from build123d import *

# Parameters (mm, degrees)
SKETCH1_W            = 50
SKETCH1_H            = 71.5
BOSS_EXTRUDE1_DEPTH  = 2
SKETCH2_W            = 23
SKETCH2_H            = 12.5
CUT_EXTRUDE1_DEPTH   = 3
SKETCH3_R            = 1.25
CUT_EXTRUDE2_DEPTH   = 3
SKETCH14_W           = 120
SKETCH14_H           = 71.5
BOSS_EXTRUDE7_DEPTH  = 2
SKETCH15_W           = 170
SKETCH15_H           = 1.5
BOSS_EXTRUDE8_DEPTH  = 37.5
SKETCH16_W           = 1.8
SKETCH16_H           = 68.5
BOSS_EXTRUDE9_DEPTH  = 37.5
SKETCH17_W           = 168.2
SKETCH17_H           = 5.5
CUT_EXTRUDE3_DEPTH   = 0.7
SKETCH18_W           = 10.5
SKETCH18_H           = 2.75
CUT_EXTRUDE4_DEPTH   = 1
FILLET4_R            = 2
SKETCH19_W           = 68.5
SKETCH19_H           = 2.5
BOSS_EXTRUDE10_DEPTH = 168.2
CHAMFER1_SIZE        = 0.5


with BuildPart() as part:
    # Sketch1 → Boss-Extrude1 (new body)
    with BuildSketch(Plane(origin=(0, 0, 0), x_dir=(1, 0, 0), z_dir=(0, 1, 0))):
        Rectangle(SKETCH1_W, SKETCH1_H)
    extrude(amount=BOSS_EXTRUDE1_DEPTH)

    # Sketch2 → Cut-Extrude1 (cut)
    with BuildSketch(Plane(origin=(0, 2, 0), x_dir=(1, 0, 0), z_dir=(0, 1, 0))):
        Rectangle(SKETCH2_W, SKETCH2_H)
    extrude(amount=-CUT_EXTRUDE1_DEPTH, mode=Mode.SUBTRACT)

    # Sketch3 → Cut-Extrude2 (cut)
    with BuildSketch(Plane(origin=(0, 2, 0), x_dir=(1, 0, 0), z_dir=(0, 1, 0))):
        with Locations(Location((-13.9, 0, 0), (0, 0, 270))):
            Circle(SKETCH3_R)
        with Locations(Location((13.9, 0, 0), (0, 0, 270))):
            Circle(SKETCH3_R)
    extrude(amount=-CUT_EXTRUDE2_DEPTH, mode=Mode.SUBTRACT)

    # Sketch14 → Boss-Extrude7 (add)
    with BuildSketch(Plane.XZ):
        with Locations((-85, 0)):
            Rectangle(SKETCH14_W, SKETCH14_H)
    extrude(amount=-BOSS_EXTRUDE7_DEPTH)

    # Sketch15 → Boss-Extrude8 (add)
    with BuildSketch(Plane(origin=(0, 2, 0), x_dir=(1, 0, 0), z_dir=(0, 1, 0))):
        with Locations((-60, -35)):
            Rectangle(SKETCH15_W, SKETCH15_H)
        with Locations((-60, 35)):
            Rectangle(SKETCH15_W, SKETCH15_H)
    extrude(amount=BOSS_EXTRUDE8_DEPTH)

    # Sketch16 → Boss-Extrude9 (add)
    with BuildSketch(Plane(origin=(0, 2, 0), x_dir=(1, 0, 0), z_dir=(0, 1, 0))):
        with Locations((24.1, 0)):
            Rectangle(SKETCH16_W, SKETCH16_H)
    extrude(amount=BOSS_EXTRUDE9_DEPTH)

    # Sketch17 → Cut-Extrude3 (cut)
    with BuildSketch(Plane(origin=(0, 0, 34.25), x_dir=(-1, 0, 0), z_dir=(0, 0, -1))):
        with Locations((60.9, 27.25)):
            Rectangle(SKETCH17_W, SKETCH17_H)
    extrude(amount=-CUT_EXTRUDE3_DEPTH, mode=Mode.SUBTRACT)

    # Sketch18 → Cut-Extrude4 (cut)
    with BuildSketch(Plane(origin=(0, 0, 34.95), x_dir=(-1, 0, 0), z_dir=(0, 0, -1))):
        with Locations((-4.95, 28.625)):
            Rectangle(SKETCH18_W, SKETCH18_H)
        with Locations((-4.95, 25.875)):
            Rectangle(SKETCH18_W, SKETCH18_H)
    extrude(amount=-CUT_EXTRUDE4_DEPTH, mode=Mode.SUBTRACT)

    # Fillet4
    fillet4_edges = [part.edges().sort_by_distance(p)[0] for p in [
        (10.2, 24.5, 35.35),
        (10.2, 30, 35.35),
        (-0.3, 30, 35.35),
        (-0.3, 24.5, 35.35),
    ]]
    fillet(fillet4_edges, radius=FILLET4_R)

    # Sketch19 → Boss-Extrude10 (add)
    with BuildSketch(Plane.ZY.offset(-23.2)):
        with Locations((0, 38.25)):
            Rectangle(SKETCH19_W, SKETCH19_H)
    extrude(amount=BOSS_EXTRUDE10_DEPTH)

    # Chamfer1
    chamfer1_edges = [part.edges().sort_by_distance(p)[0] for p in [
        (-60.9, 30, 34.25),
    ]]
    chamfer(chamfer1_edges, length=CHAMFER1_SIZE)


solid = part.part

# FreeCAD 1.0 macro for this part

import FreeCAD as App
import Part
import Sketcher
from FreeCAD import Vector


def edges_at(feature, points):
    """Names of the edges that pass closest to the given points."""
    edges = feature.Shape.Edges
    near = lambda p: min(range(len(edges)), key=lambda i: edges[i].distToShape(Part.Vertex(*p))[0])
    return sorted({f"Edge{near(p) + 1}" for p in points})

doc = App.newDocument("Part")
params = doc.addObject("Spreadsheet::Sheet", "Params")
for row, (alias, value) in enumerate([
    ("sketch1_width", "50 mm"),
    ("sketch1_height", "71.5 mm"),
    ("pad1_length", "2 mm"),
    ("sketch2_width", "23 mm"),
    ("sketch2_height", "12.5 mm"),
    ("pocket1_length", "3 mm"),
    ("sketch3_diameter", "2.5 mm"),
    ("pocket2_length", "3 mm"),
    ("sketch4_width", "120 mm"),
    ("sketch4_height", "71.5 mm"),
    ("pad2_length", "2 mm"),
    ("sketch5_width", "170 mm"),
    ("sketch5_height", "1.5 mm"),
    ("pad3_length", "37.5 mm"),
    ("sketch6_width", "1.8 mm"),
    ("sketch6_height", "68.5 mm"),
    ("pad4_length", "37.5 mm"),
    ("sketch7_width", "168.2 mm"),
    ("sketch7_height", "5.5 mm"),
    ("pocket3_length", "0.7 mm"),
    ("sketch8_width", "10.5 mm"),
    ("sketch8_height", "5.5 mm"),
    ("pocket4_length", "1 mm"),
    ("fillet_radius", "2 mm"),
    ("sketch9_width", "2.5 mm"),
    ("sketch9_height", "68.5 mm"),
    ("pad5_length", "168.2 mm"),
    ("chamfer_size", "0.5 mm"),
], start=1):
    params.set(f"A{row}", alias)
    params.set(f"B{row}", "=" + value)
    params.setAlias(f"B{row}", alias)

body = doc.addObject("PartDesign::Body", "Body")

# Sketch on XZ plane
sketch1 = body.newObject("Sketcher::SketchObject", "Sketch")
sketch1.AttachmentSupport = (doc.getObject("XZ_Plane"), [""])
sketch1.MapMode = "FlatFace"
sketch1.addGeometry(Part.LineSegment(Vector(-25, -36, 0), Vector(-25, 36, 0)), False)
sketch1.addGeometry(Part.LineSegment(Vector(-25, 36, 0), Vector(25, 36, 0)), False)
sketch1.addGeometry(Part.LineSegment(Vector(25, 36, 0), Vector(25, -36, 0)), False)
sketch1.addGeometry(Part.LineSegment(Vector(25, -36, 0), Vector(-25, -36, 0)), False)
sketch1.addConstraint(Sketcher.Constraint("Coincident", 0, 2, 1, 1))
sketch1.addConstraint(Sketcher.Constraint("Coincident", 1, 2, 2, 1))
sketch1.addConstraint(Sketcher.Constraint("Coincident", 2, 2, 3, 1))
sketch1.addConstraint(Sketcher.Constraint("Coincident", 3, 2, 0, 1))
sketch1.addConstraint(Sketcher.Constraint("Vertical", 0))
sketch1.addConstraint(Sketcher.Constraint("Horizontal", 1))
sketch1.addConstraint(Sketcher.Constraint("Vertical", 2))
sketch1.addConstraint(Sketcher.Constraint("Horizontal", 3))
sketch1.addConstraint(Sketcher.Constraint("Symmetric", 0, 2, 2, 2, -1, 1))
sketch1.addConstraint(Sketcher.Constraint("DistanceX", 1, 1, 1, 2, 50.0))
sketch1.addConstraint(Sketcher.Constraint("DistanceY", 0, 1, 0, 2, 71.5))
sketch1.setExpression("Constraints[9]", "Params.sketch1_width")
sketch1.setExpression("Constraints[10]", "Params.sketch1_height")
pad1 = body.newObject("PartDesign::Pad", "Pad")
pad1.Profile = sketch1
pad1.setExpression("Length", "Params.pad1_length")
pad1.Reversed = True

# Sketch on XZ plane
sketch2 = body.newObject("Sketcher::SketchObject", "Sketch001")
sketch2.AttachmentSupport = (doc.getObject("XZ_Plane"), [""])
sketch2.MapMode = "FlatFace"
sketch2.AttachmentOffset = App.Placement(Vector(0, 0, -2), App.Rotation())
sketch2.addGeometry(Part.LineSegment(Vector(-12, -6, 0), Vector(-12, 6, 0)), False)
sketch2.addGeometry(Part.LineSegment(Vector(-12, 6, 0), Vector(12, 6, 0)), False)
sketch2.addGeometry(Part.LineSegment(Vector(12, 6, 0), Vector(12, -6, 0)), False)
sketch2.addGeometry(Part.LineSegment(Vector(12, -6, 0), Vector(-12, -6, 0)), False)
sketch2.addConstraint(Sketcher.Constraint("Coincident", 0, 2, 1, 1))
sketch2.addConstraint(Sketcher.Constraint("Coincident", 1, 2, 2, 1))
sketch2.addConstraint(Sketcher.Constraint("Coincident", 2, 2, 3, 1))
sketch2.addConstraint(Sketcher.Constraint("Coincident", 3, 2, 0, 1))
sketch2.addConstraint(Sketcher.Constraint("Vertical", 0))
sketch2.addConstraint(Sketcher.Constraint("Horizontal", 1))
sketch2.addConstraint(Sketcher.Constraint("Vertical", 2))
sketch2.addConstraint(Sketcher.Constraint("Horizontal", 3))
sketch2.addConstraint(Sketcher.Constraint("Symmetric", 0, 2, 2, 2, -1, 1))
sketch2.addConstraint(Sketcher.Constraint("DistanceX", 1, 1, 1, 2, 23.0))
sketch2.addConstraint(Sketcher.Constraint("DistanceY", 0, 1, 0, 2, 12.5))
sketch2.setExpression("Constraints[9]", "Params.sketch2_width")
sketch2.setExpression("Constraints[10]", "Params.sketch2_height")
pocket1 = body.newObject("PartDesign::Pocket", "Pocket")
pocket1.Profile = sketch2
pocket1.setExpression("Length", "Params.pocket1_length")
pocket1.Reversed = True

# Sketch on XZ plane
sketch3 = body.newObject("Sketcher::SketchObject", "Sketch002")
sketch3.AttachmentSupport = (doc.getObject("XZ_Plane"), [""])
sketch3.MapMode = "FlatFace"
sketch3.AttachmentOffset = App.Placement(Vector(0, 0, -2), App.Rotation())
sketch3.addGeometry(Part.Circle(Vector(-13.9, 0, 0), Vector(0, 0, 1), 1.2), False)
sketch3.addGeometry(Part.Circle(Vector(13.9, 0, 0), Vector(0, 0, 1), 1.2), False)
sketch3.addConstraint(Sketcher.Constraint("Equal", 0, 1))
sketch3.addConstraint(Sketcher.Constraint("Symmetric", 0, 3, 1, 3, -1, 1))
sketch3.addConstraint(Sketcher.Constraint("PointOnObject", 0, 3, -1))
sketch3.addConstraint(Sketcher.Constraint("Diameter", 0, 2.5))
sketch3.addConstraint(Sketcher.Constraint("DistanceX", 0, 3, -1, 1, 13.9))
sketch3.setExpression("Constraints[3]", "Params.sketch3_diameter")
pocket2 = body.newObject("PartDesign::Pocket", "Pocket001")
pocket2.Profile = sketch3
pocket2.setExpression("Length", "Params.pocket2_length")
pocket2.Reversed = True

# Sketch on XZ plane
sketch4 = body.newObject("Sketcher::SketchObject", "Sketch003")
sketch4.AttachmentSupport = (doc.getObject("XZ_Plane"), [""])
sketch4.MapMode = "FlatFace"
sketch4.addGeometry(Part.LineSegment(Vector(-145, 36, 0), Vector(-145, -36, 0)), False)
sketch4.addGeometry(Part.LineSegment(Vector(-145, -36, 0), Vector(-25, -36, 0)), False)
sketch4.addGeometry(Part.LineSegment(Vector(-25, -36, 0), Vector(-25, 36, 0)), False)
sketch4.addGeometry(Part.LineSegment(Vector(-25, 36, 0), Vector(-145, 36, 0)), False)
sketch4.addConstraint(Sketcher.Constraint("Coincident", 0, 2, 1, 1))
sketch4.addConstraint(Sketcher.Constraint("Coincident", 1, 2, 2, 1))
sketch4.addConstraint(Sketcher.Constraint("Coincident", 2, 2, 3, 1))
sketch4.addConstraint(Sketcher.Constraint("Coincident", 3, 2, 0, 1))
sketch4.addConstraint(Sketcher.Constraint("Vertical", 0))
sketch4.addConstraint(Sketcher.Constraint("Horizontal", 1))
sketch4.addConstraint(Sketcher.Constraint("Vertical", 2))
sketch4.addConstraint(Sketcher.Constraint("Horizontal", 3))
sketch4.addConstraint(Sketcher.Constraint("DistanceX", 1, 1, 1, 2, 120.0))
sketch4.addConstraint(Sketcher.Constraint("DistanceY", 0, 2, 0, 1, 71.5))
sketch4.addConstraint(Sketcher.Constraint("DistanceX", 0, 2, -1, 1, 145.0))
sketch4.addConstraint(Sketcher.Constraint("DistanceY", 0, 2, -1, 1, 35.75))
sketch4.setExpression("Constraints[8]", "Params.sketch4_width")
sketch4.setExpression("Constraints[9]", "Params.sketch4_height")
pad2 = body.newObject("PartDesign::Pad", "Pad001")
pad2.Profile = sketch4
pad2.setExpression("Length", "Params.pad2_length")
pad2.Reversed = True

# Sketch on XZ plane
sketch5 = body.newObject("Sketcher::SketchObject", "Sketch004")
sketch5.AttachmentSupport = (doc.getObject("XZ_Plane"), [""])
sketch5.MapMode = "FlatFace"
sketch5.AttachmentOffset = App.Placement(Vector(0, 0, -2), App.Rotation())
sketch5.addGeometry(Part.LineSegment(Vector(-145, 34.2, 0), Vector(-145, 35.8, 0)), False)
sketch5.addGeometry(Part.LineSegment(Vector(-145, 35.8, 0), Vector(25, 35.8, 0)), False)
sketch5.addGeometry(Part.LineSegment(Vector(25, 35.8, 0), Vector(25, 34.2, 0)), False)
sketch5.addGeometry(Part.LineSegment(Vector(25, 34.2, 0), Vector(-145, 34.2, 0)), False)
sketch5.addGeometry(Part.LineSegment(Vector(-145, -35.8, 0), Vector(-145, -34.2, 0)), False)
sketch5.addGeometry(Part.LineSegment(Vector(-145, -34.2, 0), Vector(25, -34.2, 0)), False)
sketch5.addGeometry(Part.LineSegment(Vector(25, -34.2, 0), Vector(25, -35.8, 0)), False)
sketch5.addGeometry(Part.LineSegment(Vector(25, -35.8, 0), Vector(-145, -35.8, 0)), False)
sketch5.addConstraint(Sketcher.Constraint("Coincident", 0, 2, 1, 1))
sketch5.addConstraint(Sketcher.Constraint("Coincident", 1, 2, 2, 1))
sketch5.addConstraint(Sketcher.Constraint("Coincident", 2, 2, 3, 1))
sketch5.addConstraint(Sketcher.Constraint("Coincident", 3, 2, 0, 1))
sketch5.addConstraint(Sketcher.Constraint("Coincident", 4, 2, 5, 1))
sketch5.addConstraint(Sketcher.Constraint("Coincident", 5, 2, 6, 1))
sketch5.addConstraint(Sketcher.Constraint("Coincident", 6, 2, 7, 1))
sketch5.addConstraint(Sketcher.Constraint("Coincident", 7, 2, 4, 1))
sketch5.addConstraint(Sketcher.Constraint("Vertical", 0))
sketch5.addConstraint(Sketcher.Constraint("Horizontal", 1))
sketch5.addConstraint(Sketcher.Constraint("Vertical", 2))
sketch5.addConstraint(Sketcher.Constraint("Horizontal", 3))
sketch5.addConstraint(Sketcher.Constraint("Vertical", 4))
sketch5.addConstraint(Sketcher.Constraint("Horizontal", 5))
sketch5.addConstraint(Sketcher.Constraint("Vertical", 6))
sketch5.addConstraint(Sketcher.Constraint("Horizontal", 7))
sketch5.addConstraint(Sketcher.Constraint("Symmetric", 3, 2, 4, 2, -1))
sketch5.addConstraint(Sketcher.Constraint("Symmetric", 1, 2, 6, 2, -1))
sketch5.addConstraint(Sketcher.Constraint("DistanceX", 1, 1, 1, 2, 170.0))
sketch5.addConstraint(Sketcher.Constraint("DistanceY", 0, 1, 0, 2, 1.5))
sketch5.addConstraint(Sketcher.Constraint("DistanceX", 0, 2, -1, 1, 145.0))
sketch5.addConstraint(Sketcher.Constraint("DistanceY", 4, 2, 0, 2, 70.0))
sketch5.setExpression("Constraints[18]", "Params.sketch5_width")
sketch5.setExpression("Constraints[19]", "Params.sketch5_height")
pad3 = body.newObject("PartDesign::Pad", "Pad002")
pad3.Profile = sketch5
pad3.setExpression("Length", "Params.pad3_length")
pad3.Reversed = True

# Sketch on XZ plane
sketch6 = body.newObject("Sketcher::SketchObject", "Sketch005")
sketch6.AttachmentSupport = (doc.getObject("XZ_Plane"), [""])
sketch6.MapMode = "FlatFace"
sketch6.AttachmentOffset = App.Placement(Vector(0, 0, -2), App.Rotation())
sketch6.addGeometry(Part.LineSegment(Vector(23.2, -34.2, 0), Vector(23.2, 34.2, 0)), False)
sketch6.addGeometry(Part.LineSegment(Vector(23.2, 34.2, 0), Vector(25, 34.2, 0)), False)
sketch6.addGeometry(Part.LineSegment(Vector(25, 34.2, 0), Vector(25, -34.2, 0)), False)
sketch6.addGeometry(Part.LineSegment(Vector(25, -34.2, 0), Vector(23.2, -34.2, 0)), False)
sketch6.addConstraint(Sketcher.Constraint("Coincident", 0, 2, 1, 1))
sketch6.addConstraint(Sketcher.Constraint("Coincident", 1, 2, 2, 1))
sketch6.addConstraint(Sketcher.Constraint("Coincident", 2, 2, 3, 1))
sketch6.addConstraint(Sketcher.Constraint("Coincident", 3, 2, 0, 1))
sketch6.addConstraint(Sketcher.Constraint("Vertical", 0))
sketch6.addConstraint(Sketcher.Constraint("Horizontal", 1))
sketch6.addConstraint(Sketcher.Constraint("Vertical", 2))
sketch6.addConstraint(Sketcher.Constraint("Horizontal", 3))
sketch6.addConstraint(Sketcher.Constraint("DistanceX", 1, 1, 1, 2, 1.8))
sketch6.addConstraint(Sketcher.Constraint("DistanceY", 0, 1, 0, 2, 68.5))
sketch6.addConstraint(Sketcher.Constraint("DistanceX", -1, 1, 1, 2, 25.0))
sketch6.addConstraint(Sketcher.Constraint("DistanceY", -1, 1, 0, 2, 34.25))
sketch6.setExpression("Constraints[8]", "Params.sketch6_width")
sketch6.setExpression("Constraints[9]", "Params.sketch6_height")
pad4 = body.newObject("PartDesign::Pad", "Pad003")
pad4.Profile = sketch6
pad4.setExpression("Length", "Params.pad4_length")
pad4.Reversed = True

# Sketch on XY plane
sketch7 = body.newObject("Sketcher::SketchObject", "Sketch006")
sketch7.AttachmentSupport = (doc.getObject("XY_Plane"), [""])
sketch7.MapMode = "FlatFace"
sketch7.AttachmentOffset = App.Placement(Vector(0, 0, 34.25), App.Rotation())
sketch7.addGeometry(Part.LineSegment(Vector(23, 30, 0), Vector(23, 24, 0)), False)
sketch7.addGeometry(Part.LineSegment(Vector(23, 24, 0), Vector(-145, 24, 0)), False)
sketch7.addGeometry(Part.LineSegment(Vector(-145, 24, 0), Vector(-145, 30, 0)), False)
sketch7.addGeometry(Part.LineSegment(Vector(-145, 30, 0), Vector(23, 30, 0)), False)
sketch7.addConstraint(Sketcher.Constraint("Coincident", 0, 2, 1, 1))
sketch7.addConstraint(Sketcher.Constraint("Coincident", 1, 2, 2, 1))
sketch7.addConstraint(Sketcher.Constraint("Coincident", 2, 2, 3, 1))
sketch7.addConstraint(Sketcher.Constraint("Coincident", 3, 2, 0, 1))
sketch7.addConstraint(Sketcher.Constraint("Vertical", 0))
sketch7.addConstraint(Sketcher.Constraint("Horizontal", 1))
sketch7.addConstraint(Sketcher.Constraint("Vertical", 2))
sketch7.addConstraint(Sketcher.Constraint("Horizontal", 3))
sketch7.addConstraint(Sketcher.Constraint("DistanceX", 1, 2, 1, 1, 168.2))
sketch7.addConstraint(Sketcher.Constraint("DistanceY", 0, 2, 0, 1, 5.5))
sketch7.addConstraint(Sketcher.Constraint("DistanceX", 1, 2, -1, 1, 145.0))
sketch7.addConstraint(Sketcher.Constraint("DistanceY", -1, 1, 2, 2, 30.0))
sketch7.setExpression("Constraints[8]", "Params.sketch7_width")
sketch7.setExpression("Constraints[9]", "Params.sketch7_height")
pocket3 = body.newObject("PartDesign::Pocket", "Pocket002")
pocket3.Profile = sketch7
pocket3.setExpression("Length", "Params.pocket3_length")
pocket3.Reversed = True

# Sketch on XY plane
sketch8 = body.newObject("Sketcher::SketchObject", "Sketch007")
sketch8.AttachmentSupport = (doc.getObject("XY_Plane"), [""])
sketch8.MapMode = "FlatFace"
sketch8.AttachmentOffset = App.Placement(Vector(0, 0, 34.95), App.Rotation())
sketch8.addGeometry(Part.LineSegment(Vector(10, 30, 0), Vector(10, 24, 0)), False)
sketch8.addGeometry(Part.LineSegment(Vector(10, 24, 0), Vector(0, 24, 0)), False)
sketch8.addGeometry(Part.LineSegment(Vector(0, 24, 0), Vector(0, 30, 0)), False)
sketch8.addGeometry(Part.LineSegment(Vector(0, 30, 0), Vector(10, 30, 0)), False)
sketch8.addConstraint(Sketcher.Constraint("Coincident", 0, 2, 1, 1))
sketch8.addConstraint(Sketcher.Constraint("Coincident", 1, 2, 2, 1))
sketch8.addConstraint(Sketcher.Constraint("Coincident", 2, 2, 3, 1))
sketch8.addConstraint(Sketcher.Constraint("Coincident", 3, 2, 0, 1))
sketch8.addConstraint(Sketcher.Constraint("Vertical", 0))
sketch8.addConstraint(Sketcher.Constraint("Horizontal", 1))
sketch8.addConstraint(Sketcher.Constraint("Vertical", 2))
sketch8.addConstraint(Sketcher.Constraint("Horizontal", 3))
sketch8.addConstraint(Sketcher.Constraint("DistanceX", 1, 2, 1, 1, 10.5))
sketch8.addConstraint(Sketcher.Constraint("DistanceY", 0, 2, 0, 1, 5.5))
sketch8.addConstraint(Sketcher.Constraint("DistanceY", -1, 1, 2, 2, 30.0))
sketch8.addConstraint(Sketcher.Constraint("DistanceX", -1, 1, 0, 2, 10.2))
sketch8.setExpression("Constraints[8]", "Params.sketch8_width")
sketch8.setExpression("Constraints[9]", "Params.sketch8_height")
pocket4 = body.newObject("PartDesign::Pocket", "Pocket003")
pocket4.Profile = sketch8
pocket4.setExpression("Length", "Params.pocket4_length")
pocket4.Reversed = True
doc.recompute()

fillet = body.newObject("PartDesign::Fillet", "Fillet")
fillet.Base = (pocket4, edges_at(pocket4, [
    (10.2, 24.5, 35.35),
    (10.2, 30, 35.35),
    (-0.3, 30, 35.35),
    (-0.3, 24.5, 35.35),
]))
fillet.setExpression("Radius", "Params.fillet_radius")

# Sketch on YZ plane
sketch9 = body.newObject("Sketcher::SketchObject", "Sketch008")
sketch9.AttachmentSupport = (doc.getObject("YZ_Plane"), [""])
sketch9.MapMode = "FlatFace"
sketch9.AttachmentOffset = App.Placement(Vector(0, 0, 23.2), App.Rotation())
sketch9.addGeometry(Part.LineSegment(Vector(39.5, -34.2, 0), Vector(37, -34.2, 0)), False)
sketch9.addGeometry(Part.LineSegment(Vector(37, -34.2, 0), Vector(37, 34.2, 0)), False)
sketch9.addGeometry(Part.LineSegment(Vector(37, 34.2, 0), Vector(39.5, 34.2, 0)), False)
sketch9.addGeometry(Part.LineSegment(Vector(39.5, 34.2, 0), Vector(39.5, -34.2, 0)), False)
sketch9.addConstraint(Sketcher.Constraint("Coincident", 0, 2, 1, 1))
sketch9.addConstraint(Sketcher.Constraint("Coincident", 1, 2, 2, 1))
sketch9.addConstraint(Sketcher.Constraint("Coincident", 2, 2, 3, 1))
sketch9.addConstraint(Sketcher.Constraint("Coincident", 3, 2, 0, 1))
sketch9.addConstraint(Sketcher.Constraint("Horizontal", 0))
sketch9.addConstraint(Sketcher.Constraint("Vertical", 1))
sketch9.addConstraint(Sketcher.Constraint("Horizontal", 2))
sketch9.addConstraint(Sketcher.Constraint("Vertical", 3))
sketch9.addConstraint(Sketcher.Constraint("DistanceX", 0, 2, 0, 1, 2.5))
sketch9.addConstraint(Sketcher.Constraint("DistanceY", 1, 1, 1, 2, 68.5))
sketch9.addConstraint(Sketcher.Constraint("DistanceX", -1, 1, 0, 2, 37.0))
sketch9.addConstraint(Sketcher.Constraint("DistanceY", 0, 2, -1, 1, 34.25))
sketch9.setExpression("Constraints[8]", "Params.sketch9_width")
sketch9.setExpression("Constraints[9]", "Params.sketch9_height")
pad5 = body.newObject("PartDesign::Pad", "Pad004")
pad5.Profile = sketch9
pad5.setExpression("Length", "Params.pad5_length")
pad5.Reversed = True
doc.recompute()

chamfer = body.newObject("PartDesign::Chamfer", "Chamfer")
chamfer.Base = (pad5, edges_at(pad5, [(-60.9, 30, 34.25)]))
chamfer.setExpression("Size", "Params.chamfer_size")

doc.recompute()
